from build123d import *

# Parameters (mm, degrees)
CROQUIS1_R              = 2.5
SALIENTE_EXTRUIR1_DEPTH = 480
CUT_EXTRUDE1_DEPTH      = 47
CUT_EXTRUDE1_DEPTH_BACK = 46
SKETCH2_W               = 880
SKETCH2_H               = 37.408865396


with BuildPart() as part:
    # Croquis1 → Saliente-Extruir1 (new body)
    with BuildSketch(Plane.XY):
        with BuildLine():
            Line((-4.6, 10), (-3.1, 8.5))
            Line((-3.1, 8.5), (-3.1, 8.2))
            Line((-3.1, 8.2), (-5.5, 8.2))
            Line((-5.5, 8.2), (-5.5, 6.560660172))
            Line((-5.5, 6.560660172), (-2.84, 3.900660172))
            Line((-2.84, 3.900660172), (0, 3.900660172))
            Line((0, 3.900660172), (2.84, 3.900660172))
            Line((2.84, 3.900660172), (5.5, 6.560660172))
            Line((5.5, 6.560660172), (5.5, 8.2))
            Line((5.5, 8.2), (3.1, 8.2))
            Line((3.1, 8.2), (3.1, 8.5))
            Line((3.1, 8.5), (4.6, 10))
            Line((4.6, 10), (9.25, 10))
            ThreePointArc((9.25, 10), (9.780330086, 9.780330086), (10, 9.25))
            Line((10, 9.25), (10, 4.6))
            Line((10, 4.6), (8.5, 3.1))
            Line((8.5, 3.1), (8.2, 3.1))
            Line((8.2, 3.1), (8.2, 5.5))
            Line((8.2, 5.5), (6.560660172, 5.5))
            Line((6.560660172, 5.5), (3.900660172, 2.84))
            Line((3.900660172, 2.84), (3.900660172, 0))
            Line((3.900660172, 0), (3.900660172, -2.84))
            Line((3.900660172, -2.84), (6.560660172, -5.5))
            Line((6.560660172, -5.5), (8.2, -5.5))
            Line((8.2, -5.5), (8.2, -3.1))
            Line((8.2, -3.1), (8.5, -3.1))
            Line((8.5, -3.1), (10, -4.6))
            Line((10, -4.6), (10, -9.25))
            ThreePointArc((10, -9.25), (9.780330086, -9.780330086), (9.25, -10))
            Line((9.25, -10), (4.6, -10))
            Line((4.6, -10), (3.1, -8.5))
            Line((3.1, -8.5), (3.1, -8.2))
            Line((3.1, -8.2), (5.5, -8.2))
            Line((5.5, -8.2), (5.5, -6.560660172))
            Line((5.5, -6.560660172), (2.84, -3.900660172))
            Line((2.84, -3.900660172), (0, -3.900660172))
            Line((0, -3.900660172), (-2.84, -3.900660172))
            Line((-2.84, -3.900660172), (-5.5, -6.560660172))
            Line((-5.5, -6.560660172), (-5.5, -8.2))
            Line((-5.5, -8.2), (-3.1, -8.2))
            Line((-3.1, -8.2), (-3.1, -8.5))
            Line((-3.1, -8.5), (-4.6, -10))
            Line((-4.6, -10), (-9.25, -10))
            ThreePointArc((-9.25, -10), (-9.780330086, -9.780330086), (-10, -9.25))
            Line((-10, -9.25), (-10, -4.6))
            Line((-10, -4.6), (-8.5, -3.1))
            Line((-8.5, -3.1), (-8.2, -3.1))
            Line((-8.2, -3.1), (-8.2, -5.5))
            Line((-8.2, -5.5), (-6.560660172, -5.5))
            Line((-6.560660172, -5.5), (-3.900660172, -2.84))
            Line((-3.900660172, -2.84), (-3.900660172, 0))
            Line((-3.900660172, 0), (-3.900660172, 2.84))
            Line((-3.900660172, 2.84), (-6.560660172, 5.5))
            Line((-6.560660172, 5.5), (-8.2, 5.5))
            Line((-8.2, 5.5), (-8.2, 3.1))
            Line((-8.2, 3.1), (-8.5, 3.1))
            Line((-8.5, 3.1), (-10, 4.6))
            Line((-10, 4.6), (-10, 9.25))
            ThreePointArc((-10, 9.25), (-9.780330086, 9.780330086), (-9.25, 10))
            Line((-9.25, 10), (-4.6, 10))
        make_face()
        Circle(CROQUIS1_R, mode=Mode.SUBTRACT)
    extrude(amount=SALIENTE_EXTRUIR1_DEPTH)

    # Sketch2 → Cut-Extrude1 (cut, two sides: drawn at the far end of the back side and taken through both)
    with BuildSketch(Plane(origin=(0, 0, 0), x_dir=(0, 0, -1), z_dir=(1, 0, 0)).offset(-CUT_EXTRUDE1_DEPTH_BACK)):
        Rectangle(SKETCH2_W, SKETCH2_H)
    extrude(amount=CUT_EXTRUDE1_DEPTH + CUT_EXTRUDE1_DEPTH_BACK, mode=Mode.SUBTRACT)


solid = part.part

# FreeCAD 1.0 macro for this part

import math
import FreeCAD as App
import Part
import Sketcher
from FreeCAD import Vector


def add_polygon(sketch, points):
    """Adds a closed chain of lines whose ends are joined by coincident constraints."""
    first, n = sketch.GeometryCount, len(points)
    for a, b in zip(points, points[1:] + points[:1]):
        sketch.addGeometry(Part.LineSegment(App.Vector(*a, 0), App.Vector(*b, 0)), False)
    for i in range(n):
        sketch.addConstraint(Sketcher.Constraint("Coincident", first + i, 2, first + (i + 1) % n, 1))

doc = App.newDocument("Part")
params = doc.addObject("Spreadsheet::Sheet", "Params")
for row, (alias, value) in enumerate([
    ("sketch1_diameter", "5 mm"),
    ("sketch1_radius", "0.75 mm"),
    ("sketch1_width", "0.3 mm"),
    ("sketch1_width2", "2.4 mm"),
    ("sketch1_width3", "4.65 mm"),
    ("pad1_length", "480 mm"),
    ("sketch2_height", "880 mm"),
], start=1):
    params.set(f"A{row}", alias)
    params.set(f"B{row}", "=" + value)
    params.setAlias(f"B{row}", alias)

body = doc.addObject("PartDesign::Body", "Body")

sketch1 = doc.addObject("Sketcher::SketchObject", "Sketch")
body.addObject(sketch1)
sketch1.AttachmentSupport = (doc.XY_Plane, [""])
sketch1.MapMode = "FlatFace"
sketch1.addGeometry([
    Part.LineSegment(Vector(-3.1, 8.5, 0), Vector(-4.6, 10, 0)),
    Part.LineSegment(Vector(-4.6, 10, 0), Vector(-9.25, 10, 0)),
    Part.ArcOfCircle(Part.Circle(Vector(-9.25, 9.25, 0), Vector(0, 0, 1), 0.75), math.radians(90), math.radians(180)),
    Part.LineSegment(Vector(-10, 9.25, 0), Vector(-10, 4.6, 0)),
    Part.LineSegment(Vector(-10, 4.6, 0), Vector(-8.5, 3.1, 0)),
    Part.LineSegment(Vector(-8.5, 3.1, 0), Vector(-8.2, 3.1, 0)),
    Part.LineSegment(Vector(-8.2, 3.1, 0), Vector(-8.2, 5.5, 0)),
    Part.LineSegment(Vector(-8.2, 5.5, 0), Vector(-6.56, 5.5, 0)),
    Part.LineSegment(Vector(-6.56, 5.5, 0), Vector(-3.9, 2.84, 0)),
    Part.LineSegment(Vector(-3.9, 2.84, 0), Vector(-3.9, -2.84, 0)),
    Part.LineSegment(Vector(-3.9, -2.84, 0), Vector(-6.56, -5.5, 0)),
    Part.LineSegment(Vector(-6.56, -5.5, 0), Vector(-8.2, -5.5, 0)),
    Part.LineSegment(Vector(-8.2, -5.5, 0), Vector(-8.2, -3.1, 0)),
    Part.LineSegment(Vector(-8.2, -3.1, 0), Vector(-8.5, -3.1, 0)),
    Part.LineSegment(Vector(-8.5, -3.1, 0), Vector(-10, -4.6, 0)),
    Part.LineSegment(Vector(-10, -4.6, 0), Vector(-10, -9.25, 0)),
    Part.ArcOfCircle(Part.Circle(Vector(-9.25, -9.25, 0), Vector(0, 0, 1), 0.75), math.radians(180), math.radians(270)),
    Part.LineSegment(Vector(-9.25, -10, 0), Vector(-4.6, -10, 0)),
    Part.LineSegment(Vector(-4.6, -10, 0), Vector(-3.1, -8.5, 0)),
    Part.LineSegment(Vector(-3.1, -8.5, 0), Vector(-3.1, -8.2, 0)),
    Part.LineSegment(Vector(-3.1, -8.2, 0), Vector(-5.5, -8.2, 0)),
    Part.LineSegment(Vector(-5.5, -8.2, 0), Vector(-5.5, -6.56, 0)),
    Part.LineSegment(Vector(-5.5, -6.56, 0), Vector(-2.84, -3.9, 0)),
    Part.LineSegment(Vector(-2.84, -3.9, 0), Vector(2.84, -3.9, 0)),
    Part.LineSegment(Vector(2.84, -3.9, 0), Vector(5.5, -6.56, 0)),
    Part.LineSegment(Vector(5.5, -6.56, 0), Vector(5.5, -8.2, 0)),
    Part.LineSegment(Vector(5.5, -8.2, 0), Vector(3.1, -8.2, 0)),
    Part.LineSegment(Vector(3.1, -8.2, 0), Vector(3.1, -8.5, 0)),
    Part.LineSegment(Vector(3.1, -8.5, 0), Vector(4.6, -10, 0)),
    Part.LineSegment(Vector(4.6, -10, 0), Vector(9.25, -10, 0)),
    Part.ArcOfCircle(Part.Circle(Vector(9.25, -9.25, 0), Vector(0, 0, 1), 0.75), math.radians(-90), math.radians(0)),
    Part.LineSegment(Vector(10, -9.25, 0), Vector(10, -4.6, 0)),
    Part.LineSegment(Vector(10, -4.6, 0), Vector(8.5, -3.1, 0)),
    Part.LineSegment(Vector(8.5, -3.1, 0), Vector(8.2, -3.1, 0)),
    Part.LineSegment(Vector(8.2, -3.1, 0), Vector(8.2, -5.5, 0)),
    Part.LineSegment(Vector(8.2, -5.5, 0), Vector(6.56, -5.5, 0)),
    Part.LineSegment(Vector(6.56, -5.5, 0), Vector(3.9, -2.84, 0)),
    Part.LineSegment(Vector(3.9, -2.84, 0), Vector(3.9, 2.84, 0)),
    Part.LineSegment(Vector(3.9, 2.84, 0), Vector(6.56, 5.5, 0)),
    Part.LineSegment(Vector(6.56, 5.5, 0), Vector(8.2, 5.5, 0)),
    Part.LineSegment(Vector(8.2, 5.5, 0), Vector(8.2, 3.1, 0)),
    Part.LineSegment(Vector(8.2, 3.1, 0), Vector(8.5, 3.1, 0)),
    Part.LineSegment(Vector(8.5, 3.1, 0), Vector(10, 4.6, 0)),
    Part.LineSegment(Vector(10, 4.6, 0), Vector(10, 9.25, 0)),
    Part.ArcOfCircle(Part.Circle(Vector(9.25, 9.25, 0), Vector(0, 0, 1), 0.75), math.radians(0), math.radians(90)),
    Part.LineSegment(Vector(9.25, 10, 0), Vector(4.6, 10, 0)),
    Part.LineSegment(Vector(4.6, 10, 0), Vector(3.1, 8.5, 0)),
    Part.LineSegment(Vector(3.1, 8.5, 0), Vector(3.1, 8.2, 0)),
    Part.LineSegment(Vector(3.1, 8.2, 0), Vector(5.5, 8.2, 0)),
    Part.LineSegment(Vector(5.5, 8.2, 0), Vector(5.5, 6.56, 0)),
    Part.LineSegment(Vector(5.5, 6.56, 0), Vector(2.84, 3.9, 0)),
    Part.LineSegment(Vector(2.84, 3.9, 0), Vector(-2.84, 3.9, 0)),
    Part.LineSegment(Vector(-2.84, 3.9, 0), Vector(-5.5, 6.56, 0)),
    Part.LineSegment(Vector(-5.5, 6.56, 0), Vector(-5.5, 8.2, 0)),
    Part.LineSegment(Vector(-5.5, 8.2, 0), Vector(-3.1, 8.2, 0)),
    Part.LineSegment(Vector(-3.1, 8.2, 0), Vector(-3.1, 8.5, 0)),
    Part.Circle(Vector(0, 0, 0), Vector(0, 0, 1), 2.5),
], False)
sketch1.addConstraint([
    Sketcher.Constraint("Coincident", 0, 2, 1, 1),
    Sketcher.Constraint("Tangent", 1, 2, 2, 1),
    Sketcher.Constraint("Tangent", 2, 2, 3, 1),
    Sketcher.Constraint("Coincident", 3, 2, 4, 1),
    Sketcher.Constraint("Coincident", 4, 2, 5, 1),
    Sketcher.Constraint("Coincident", 5, 2, 6, 1),
    Sketcher.Constraint("Coincident", 6, 2, 7, 1),
    Sketcher.Constraint("Coincident", 7, 2, 8, 1),
    Sketcher.Constraint("Coincident", 8, 2, 9, 1),
    Sketcher.Constraint("Coincident", 9, 2, 10, 1),
    Sketcher.Constraint("Coincident", 10, 2, 11, 1),
    Sketcher.Constraint("Coincident", 11, 2, 12, 1),
    Sketcher.Constraint("Coincident", 12, 2, 13, 1),
    Sketcher.Constraint("Coincident", 13, 2, 14, 1),
    Sketcher.Constraint("Coincident", 14, 2, 15, 1),
    Sketcher.Constraint("Tangent", 15, 2, 16, 1),
    Sketcher.Constraint("Tangent", 16, 2, 17, 1),
    Sketcher.Constraint("Coincident", 17, 2, 18, 1),
    Sketcher.Constraint("Coincident", 18, 2, 19, 1),
    Sketcher.Constraint("Coincident", 19, 2, 20, 1),
    Sketcher.Constraint("Coincident", 20, 2, 21, 1),
    Sketcher.Constraint("Coincident", 21, 2, 22, 1),
    Sketcher.Constraint("Coincident", 22, 2, 23, 1),
    Sketcher.Constraint("Coincident", 23, 2, 24, 1),
    Sketcher.Constraint("Coincident", 24, 2, 25, 1),
    Sketcher.Constraint("Coincident", 25, 2, 26, 1),
    Sketcher.Constraint("Coincident", 26, 2, 27, 1),
    Sketcher.Constraint("Coincident", 27, 2, 28, 1),
    Sketcher.Constraint("Coincident", 28, 2, 29, 1),
    Sketcher.Constraint("Tangent", 29, 2, 30, 1),
    Sketcher.Constraint("Tangent", 30, 2, 31, 1),
    Sketcher.Constraint("Coincident", 31, 2, 32, 1),
    Sketcher.Constraint("Coincident", 32, 2, 33, 1),
    Sketcher.Constraint("Coincident", 33, 2, 34, 1),
    Sketcher.Constraint("Coincident", 34, 2, 35, 1),
    Sketcher.Constraint("Coincident", 35, 2, 36, 1),
    Sketcher.Constraint("Coincident", 36, 2, 37, 1),
    Sketcher.Constraint("Coincident", 37, 2, 38, 1),
    Sketcher.Constraint("Coincident", 38, 2, 39, 1),
    Sketcher.Constraint("Coincident", 39, 2, 40, 1),
    Sketcher.Constraint("Coincident", 40, 2, 41, 1),
    Sketcher.Constraint("Coincident", 41, 2, 42, 1),
    Sketcher.Constraint("Coincident", 42, 2, 43, 1),
    Sketcher.Constraint("Tangent", 43, 2, 44, 1),
    Sketcher.Constraint("Tangent", 44, 2, 45, 1),
    Sketcher.Constraint("Coincident", 45, 2, 46, 1),
    Sketcher.Constraint("Coincident", 46, 2, 47, 1),
    Sketcher.Constraint("Coincident", 47, 2, 48, 1),
    Sketcher.Constraint("Coincident", 48, 2, 49, 1),
    Sketcher.Constraint("Coincident", 49, 2, 50, 1),
    Sketcher.Constraint("Coincident", 50, 2, 51, 1),
    Sketcher.Constraint("Coincident", 51, 2, 52, 1),
    Sketcher.Constraint("Coincident", 52, 2, 53, 1),
    Sketcher.Constraint("Coincident", 53, 2, 54, 1),
    Sketcher.Constraint("Coincident", 54, 2, 55, 1),
    Sketcher.Constraint("Coincident", 55, 2, 0, 1),
    Sketcher.Constraint("Horizontal", 1),
    Sketcher.Constraint("Vertical", 3),
    Sketcher.Constraint("Horizontal", 5),
    Sketcher.Constraint("Vertical", 6),
    Sketcher.Constraint("Horizontal", 7),
    Sketcher.Constraint("Vertical", 9),
    Sketcher.Constraint("Horizontal", 11),
    Sketcher.Constraint("Vertical", 12),
    Sketcher.Constraint("Horizontal", 13),
    Sketcher.Constraint("Vertical", 15),
    Sketcher.Constraint("Horizontal", 17),
    Sketcher.Constraint("Vertical", 19),
    Sketcher.Constraint("Horizontal", 20),
    Sketcher.Constraint("Vertical", 21),
    Sketcher.Constraint("Horizontal", 23),
    Sketcher.Constraint("Vertical", 25),
    Sketcher.Constraint("Horizontal", 26),
    Sketcher.Constraint("Vertical", 27),
    Sketcher.Constraint("Horizontal", 29),
    Sketcher.Constraint("Vertical", 31),
    Sketcher.Constraint("Horizontal", 33),
    Sketcher.Constraint("Vertical", 34),
    Sketcher.Constraint("Horizontal", 35),
    Sketcher.Constraint("Vertical", 37),
    Sketcher.Constraint("Horizontal", 39),
    Sketcher.Constraint("Vertical", 40),
    Sketcher.Constraint("Horizontal", 41),
    Sketcher.Constraint("Vertical", 43),
    Sketcher.Constraint("Horizontal", 45),
    Sketcher.Constraint("Vertical", 47),
    Sketcher.Constraint("Horizontal", 48),
    Sketcher.Constraint("Vertical", 49),
    Sketcher.Constraint("Horizontal", 51),
    Sketcher.Constraint("Vertical", 53),
    Sketcher.Constraint("Horizontal", 54),
    Sketcher.Constraint("Vertical", 55),
    Sketcher.Constraint("Coincident", 56, 3, -1, 1),
    Sketcher.Constraint("Equal", 2, 16),
    Sketcher.Constraint("Equal", 16, 30),
    Sketcher.Constraint("Equal", 30, 44),
    Sketcher.Constraint("Symmetric", 2, 3, 30, 3, -1, 1),
    Sketcher.Constraint("Symmetric", 16, 3, 44, 3, -1, 1),
    Sketcher.Constraint("Symmetric", 4, 2, 32, 2, -1, 1),
    Sketcher.Constraint("Symmetric", 6, 2, 34, 2, -1, 1),
    Sketcher.Constraint("Symmetric", 8, 2, 36, 2, -1, 1),
    Sketcher.Constraint("Symmetric", 10, 2, 38, 2, -1, 1),
    Sketcher.Constraint("Symmetric", 12, 2, 40, 2, -1, 1),
    Sketcher.Constraint("Symmetric", 18, 2, 46, 2, -1, 1),
    Sketcher.Constraint("Symmetric", 20, 2, 48, 2, -1, 1),
    Sketcher.Constraint("Symmetric", 22, 2, 50, 2, -1, 1),
    Sketcher.Constraint("Symmetric", 24, 2, 52, 2, -1, 1),
    Sketcher.Constraint("Symmetric", 26, 2, 54, 2, -1, 1),
    Sketcher.Constraint("Symmetric", 16, 3, 30, 3, -2),
    Sketcher.Constraint("Symmetric", 21, 2, 24, 2, -2),
    Sketcher.Constraint("Symmetric", 19, 2, 26, 2, -2),
    Sketcher.Constraint("Symmetric", 13, 2, 32, 2, -2),
    Sketcher.Constraint("Symmetric", 11, 2, 34, 2, -2),
    Sketcher.Constraint("Parallel", 0, 4),
    Sketcher.Constraint("Parallel", 4, 8),
    Sketcher.Constraint("Perpendicular", 8, 10),
    Sketcher.Constraint("Parallel", 10, 14),
    Sketcher.Constraint("Parallel", 14, 18),
    Sketcher.Constraint("Parallel", 18, 22),
    Sketcher.Constraint("Perpendicular", 22, 24),
    Sketcher.Constraint("Parallel", 24, 28),
    Sketcher.Constraint("Parallel", 28, 32),
    Sketcher.Constraint("Parallel", 32, 36),
    Sketcher.Constraint("Perpendicular", 36, 38),
    Sketcher.Constraint("Parallel", 38, 42),
    Sketcher.Constraint("Parallel", 42, 46),
    Sketcher.Constraint("Parallel", 46, 50),
    Sketcher.Constraint("Perpendicular", 50, 52),
    Sketcher.Constraint("Horizontal", 18, 2, 27, 2),
    Sketcher.Constraint("Horizontal", 14, 2, 31, 2),
    Sketcher.Constraint("Horizontal", 9, 2, 36, 2),
    Sketcher.Constraint("Horizontal", 3, 2, 42, 2),
    Sketcher.Constraint("Horizontal", 46, 2, 55, 2),
    Sketcher.Constraint("Equal", 45, 3),
    Sketcher.Constraint("Equal", 54, 6),
    Sketcher.Constraint("Equal", 51, 9),
    Sketcher.Constraint("Equal", 41, 19),
    Sketcher.Constraint("Equal", 39, 21),
    Sketcher.Constraint("Equal", 0, 4),
    Sketcher.Constraint("Equal", 10, 22),
    Sketcher.Constraint("Diameter", 56, 5.0),
    Sketcher.Constraint("Radius", 2, 0.75),
    Sketcher.Constraint("DistanceX", 5, 1, 5, 2, 0.3),
    Sketcher.Constraint("DistanceX", 20, 2, 20, 1, 2.4),
    Sketcher.Constraint("DistanceY", -1, 1, 0, 2, 10.0),
    Sketcher.Constraint("DistanceX", 1, 2, 1, 1, 4.65),
    Sketcher.Constraint("DistanceX", 23, 1, 23, 2, 5.68),
    Sketcher.Constraint("DistanceX", 4, 2, -1, 1, 8.5),
    Sketcher.Constraint("DistanceX", 7, 1, 7, 2, 1.63934),
])
sketch1.setExpression("Constraints[140]", "Params.sketch1_diameter")
sketch1.setExpression("Constraints[141]", "Params.sketch1_radius")
sketch1.setExpression("Constraints[142]", "Params.sketch1_width")
sketch1.setExpression("Constraints[143]", "Params.sketch1_width2")
sketch1.setExpression("Constraints[145]", "Params.sketch1_width3")
pad1 = doc.addObject("PartDesign::Pad", "Pad")
body.addObject(pad1)
pad1.Profile = sketch1
pad1.setExpression("Length", "Params.pad1_length")

sketch2 = doc.addObject("Sketcher::SketchObject", "Sketch001")
body.addObject(sketch2)
sketch2.AttachmentSupport = (doc.YZ_Plane, [""])
sketch2.MapMode = "FlatFace"
add_polygon(sketch2, [(19, 440), (-19, 440), (-19, -440), (19, -440)])
sketch2.addConstraint([
    Sketcher.Constraint("Horizontal", 0),
    Sketcher.Constraint("Vertical", 1),
    Sketcher.Constraint("Horizontal", 2),
    Sketcher.Constraint("Vertical", 3),
    Sketcher.Constraint("Symmetric", 0, 2, 2, 2, -1, 1),
    Sketcher.Constraint("DistanceY", 1, 2, 1, 1, 880.0),
    Sketcher.Constraint("DistanceX", 0, 2, 0, 1, 37.408865),
])
sketch2.setExpression("Constraints[9]", "Params.sketch2_height")
pocket1 = doc.addObject("PartDesign::Pocket", "Pocket")
body.addObject(pocket1)
pocket1.Profile = sketch2
pocket1.Type = "ThroughAll"
pocket1.Midplane = True

doc.recompute()
